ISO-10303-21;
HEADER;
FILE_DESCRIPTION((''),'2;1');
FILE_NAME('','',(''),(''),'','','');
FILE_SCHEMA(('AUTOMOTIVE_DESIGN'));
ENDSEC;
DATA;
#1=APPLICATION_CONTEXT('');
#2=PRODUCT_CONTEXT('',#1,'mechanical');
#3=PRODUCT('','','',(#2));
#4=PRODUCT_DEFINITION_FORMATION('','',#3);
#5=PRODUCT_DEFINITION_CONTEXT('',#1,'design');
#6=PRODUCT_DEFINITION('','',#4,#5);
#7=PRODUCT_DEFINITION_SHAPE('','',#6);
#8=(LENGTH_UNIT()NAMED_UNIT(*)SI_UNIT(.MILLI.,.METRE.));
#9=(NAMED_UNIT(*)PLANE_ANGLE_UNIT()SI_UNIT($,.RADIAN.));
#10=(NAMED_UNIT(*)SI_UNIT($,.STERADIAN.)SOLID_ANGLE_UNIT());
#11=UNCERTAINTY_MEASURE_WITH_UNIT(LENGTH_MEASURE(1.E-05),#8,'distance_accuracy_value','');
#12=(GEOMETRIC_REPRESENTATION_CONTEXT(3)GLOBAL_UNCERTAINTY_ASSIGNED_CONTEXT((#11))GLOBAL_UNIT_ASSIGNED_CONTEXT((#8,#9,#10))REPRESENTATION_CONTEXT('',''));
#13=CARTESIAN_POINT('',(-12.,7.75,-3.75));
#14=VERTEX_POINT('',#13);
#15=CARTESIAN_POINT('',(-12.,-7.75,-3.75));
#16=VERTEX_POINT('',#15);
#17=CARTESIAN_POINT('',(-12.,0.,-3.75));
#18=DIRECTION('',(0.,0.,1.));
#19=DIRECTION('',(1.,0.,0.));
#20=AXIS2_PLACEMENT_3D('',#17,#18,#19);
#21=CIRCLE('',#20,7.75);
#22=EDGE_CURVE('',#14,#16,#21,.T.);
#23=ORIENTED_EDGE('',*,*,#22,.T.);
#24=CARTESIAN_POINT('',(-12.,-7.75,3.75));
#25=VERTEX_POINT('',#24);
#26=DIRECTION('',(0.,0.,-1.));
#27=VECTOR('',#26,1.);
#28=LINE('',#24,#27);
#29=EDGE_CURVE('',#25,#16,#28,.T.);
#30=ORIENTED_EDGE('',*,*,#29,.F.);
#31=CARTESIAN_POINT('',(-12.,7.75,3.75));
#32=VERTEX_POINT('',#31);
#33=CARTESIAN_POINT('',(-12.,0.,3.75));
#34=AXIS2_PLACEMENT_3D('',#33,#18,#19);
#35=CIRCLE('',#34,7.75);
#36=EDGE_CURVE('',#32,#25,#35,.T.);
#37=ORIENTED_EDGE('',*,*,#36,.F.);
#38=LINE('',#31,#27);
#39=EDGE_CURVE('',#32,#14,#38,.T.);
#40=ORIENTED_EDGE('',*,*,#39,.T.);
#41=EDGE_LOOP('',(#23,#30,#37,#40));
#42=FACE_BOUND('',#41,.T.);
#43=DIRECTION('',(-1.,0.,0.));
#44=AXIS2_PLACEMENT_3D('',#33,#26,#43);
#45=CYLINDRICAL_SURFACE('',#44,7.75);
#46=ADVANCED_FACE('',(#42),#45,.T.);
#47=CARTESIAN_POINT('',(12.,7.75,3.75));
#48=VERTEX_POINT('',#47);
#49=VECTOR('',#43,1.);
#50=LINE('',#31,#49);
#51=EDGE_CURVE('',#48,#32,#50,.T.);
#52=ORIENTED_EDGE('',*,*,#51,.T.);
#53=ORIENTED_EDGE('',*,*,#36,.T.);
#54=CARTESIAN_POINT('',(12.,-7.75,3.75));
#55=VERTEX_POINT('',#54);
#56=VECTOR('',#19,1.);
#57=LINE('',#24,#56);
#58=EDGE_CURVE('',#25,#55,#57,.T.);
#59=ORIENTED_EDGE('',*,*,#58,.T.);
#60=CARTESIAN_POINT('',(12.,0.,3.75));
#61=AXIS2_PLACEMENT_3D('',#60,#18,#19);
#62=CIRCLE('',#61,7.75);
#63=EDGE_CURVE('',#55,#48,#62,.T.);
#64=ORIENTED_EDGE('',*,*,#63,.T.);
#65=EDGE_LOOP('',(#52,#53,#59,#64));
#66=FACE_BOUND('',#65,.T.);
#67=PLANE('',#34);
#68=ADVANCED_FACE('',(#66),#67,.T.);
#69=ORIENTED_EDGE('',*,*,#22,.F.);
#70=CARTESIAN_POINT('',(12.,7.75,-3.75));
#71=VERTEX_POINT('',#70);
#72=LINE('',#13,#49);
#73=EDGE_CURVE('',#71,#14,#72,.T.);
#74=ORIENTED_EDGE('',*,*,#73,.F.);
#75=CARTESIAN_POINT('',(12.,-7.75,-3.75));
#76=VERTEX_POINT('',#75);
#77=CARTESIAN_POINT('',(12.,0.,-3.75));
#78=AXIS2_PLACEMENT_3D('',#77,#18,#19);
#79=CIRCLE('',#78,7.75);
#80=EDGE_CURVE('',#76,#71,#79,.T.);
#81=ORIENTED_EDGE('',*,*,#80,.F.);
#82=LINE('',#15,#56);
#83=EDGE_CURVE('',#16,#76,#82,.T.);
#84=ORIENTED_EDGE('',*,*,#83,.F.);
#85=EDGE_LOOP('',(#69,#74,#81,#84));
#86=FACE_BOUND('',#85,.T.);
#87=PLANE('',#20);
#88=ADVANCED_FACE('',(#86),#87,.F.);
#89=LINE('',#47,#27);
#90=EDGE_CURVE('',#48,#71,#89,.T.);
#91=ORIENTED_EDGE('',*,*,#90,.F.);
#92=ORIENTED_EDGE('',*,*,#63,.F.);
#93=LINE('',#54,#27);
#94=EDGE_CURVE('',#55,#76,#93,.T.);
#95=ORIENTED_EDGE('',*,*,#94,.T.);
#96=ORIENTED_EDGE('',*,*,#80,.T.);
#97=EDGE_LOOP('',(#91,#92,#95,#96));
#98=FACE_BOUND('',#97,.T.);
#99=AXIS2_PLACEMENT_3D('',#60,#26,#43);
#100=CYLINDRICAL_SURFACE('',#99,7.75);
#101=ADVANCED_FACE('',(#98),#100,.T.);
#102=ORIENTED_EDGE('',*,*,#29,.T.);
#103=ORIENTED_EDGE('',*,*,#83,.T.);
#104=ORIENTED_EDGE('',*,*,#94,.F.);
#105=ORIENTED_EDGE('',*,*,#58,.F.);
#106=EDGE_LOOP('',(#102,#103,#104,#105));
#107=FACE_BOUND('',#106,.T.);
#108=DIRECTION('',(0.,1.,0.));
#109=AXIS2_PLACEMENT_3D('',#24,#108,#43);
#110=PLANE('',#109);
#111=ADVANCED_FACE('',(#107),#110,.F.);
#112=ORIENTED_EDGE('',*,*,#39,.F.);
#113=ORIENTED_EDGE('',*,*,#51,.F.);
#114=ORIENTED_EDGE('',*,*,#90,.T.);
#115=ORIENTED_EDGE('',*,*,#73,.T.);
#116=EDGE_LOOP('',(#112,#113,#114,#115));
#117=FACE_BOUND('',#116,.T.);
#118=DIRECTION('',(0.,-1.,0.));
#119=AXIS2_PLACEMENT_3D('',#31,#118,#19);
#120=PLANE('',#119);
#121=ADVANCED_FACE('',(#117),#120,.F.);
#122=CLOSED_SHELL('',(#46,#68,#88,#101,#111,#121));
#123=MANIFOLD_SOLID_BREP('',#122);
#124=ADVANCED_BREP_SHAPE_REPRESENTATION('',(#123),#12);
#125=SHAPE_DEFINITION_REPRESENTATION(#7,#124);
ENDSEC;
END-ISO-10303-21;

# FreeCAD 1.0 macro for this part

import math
import FreeCAD as App
import Part
import Sketcher

V = App.Vector
Q = App.Units.Quantity

doc = App.newDocument("Part")
body = doc.addObject("PartDesign::Body", "Body")

# Sketch on XY plane
sketch1 = body.newObject("Sketcher::SketchObject", "Sketch")
sketch1.AttachmentSupport = (doc.getObject("XY_Plane"), [""])
sketch1.MapMode = "FlatFace"
sketch1.addGeometry(Part.LineSegment(V(12, 7.75, 0), V(-12, 7.75, 0)), False)
sketch1.addGeometry(Part.ArcOfCircle(Part.Circle(V(-12, 0, 0), V(0, 0, 1), 7.75), math.radians(90), math.radians(270)), False)
sketch1.addGeometry(Part.LineSegment(V(-12, -7.75, 0), V(12, -7.75, 0)), False)
sketch1.addGeometry(Part.ArcOfCircle(Part.Circle(V(12, 0, 0), V(0, 0, 1), 7.75), math.radians(-90), math.radians(90)), False)
sketch1.addConstraint(Sketcher.Constraint("Tangent", 0, 2, 1, 1))
sketch1.addConstraint(Sketcher.Constraint("Tangent", 1, 2, 2, 1))
sketch1.addConstraint(Sketcher.Constraint("Tangent", 2, 2, 3, 1))
sketch1.addConstraint(Sketcher.Constraint("Tangent", 3, 2, 0, 1))
sketch1.addConstraint(Sketcher.Constraint("Horizontal", 0))
sketch1.addConstraint(Sketcher.Constraint("Horizontal", 2))
sketch1.addConstraint(Sketcher.Constraint("Symmetric", 1, 3, 3, 3, -1, 1))
sketch1.addConstraint(Sketcher.Constraint("DistanceX", 0, 2, 0, 1, Q("24 mm")))
sketch1.addConstraint(Sketcher.Constraint("Radius", 1, Q("7.75 mm")))
pad1 = body.newObject("PartDesign::Pad", "Pad")
pad1.Profile = sketch1
pad1.Length = 7.5
pad1.Midplane = True

doc.recompute()
